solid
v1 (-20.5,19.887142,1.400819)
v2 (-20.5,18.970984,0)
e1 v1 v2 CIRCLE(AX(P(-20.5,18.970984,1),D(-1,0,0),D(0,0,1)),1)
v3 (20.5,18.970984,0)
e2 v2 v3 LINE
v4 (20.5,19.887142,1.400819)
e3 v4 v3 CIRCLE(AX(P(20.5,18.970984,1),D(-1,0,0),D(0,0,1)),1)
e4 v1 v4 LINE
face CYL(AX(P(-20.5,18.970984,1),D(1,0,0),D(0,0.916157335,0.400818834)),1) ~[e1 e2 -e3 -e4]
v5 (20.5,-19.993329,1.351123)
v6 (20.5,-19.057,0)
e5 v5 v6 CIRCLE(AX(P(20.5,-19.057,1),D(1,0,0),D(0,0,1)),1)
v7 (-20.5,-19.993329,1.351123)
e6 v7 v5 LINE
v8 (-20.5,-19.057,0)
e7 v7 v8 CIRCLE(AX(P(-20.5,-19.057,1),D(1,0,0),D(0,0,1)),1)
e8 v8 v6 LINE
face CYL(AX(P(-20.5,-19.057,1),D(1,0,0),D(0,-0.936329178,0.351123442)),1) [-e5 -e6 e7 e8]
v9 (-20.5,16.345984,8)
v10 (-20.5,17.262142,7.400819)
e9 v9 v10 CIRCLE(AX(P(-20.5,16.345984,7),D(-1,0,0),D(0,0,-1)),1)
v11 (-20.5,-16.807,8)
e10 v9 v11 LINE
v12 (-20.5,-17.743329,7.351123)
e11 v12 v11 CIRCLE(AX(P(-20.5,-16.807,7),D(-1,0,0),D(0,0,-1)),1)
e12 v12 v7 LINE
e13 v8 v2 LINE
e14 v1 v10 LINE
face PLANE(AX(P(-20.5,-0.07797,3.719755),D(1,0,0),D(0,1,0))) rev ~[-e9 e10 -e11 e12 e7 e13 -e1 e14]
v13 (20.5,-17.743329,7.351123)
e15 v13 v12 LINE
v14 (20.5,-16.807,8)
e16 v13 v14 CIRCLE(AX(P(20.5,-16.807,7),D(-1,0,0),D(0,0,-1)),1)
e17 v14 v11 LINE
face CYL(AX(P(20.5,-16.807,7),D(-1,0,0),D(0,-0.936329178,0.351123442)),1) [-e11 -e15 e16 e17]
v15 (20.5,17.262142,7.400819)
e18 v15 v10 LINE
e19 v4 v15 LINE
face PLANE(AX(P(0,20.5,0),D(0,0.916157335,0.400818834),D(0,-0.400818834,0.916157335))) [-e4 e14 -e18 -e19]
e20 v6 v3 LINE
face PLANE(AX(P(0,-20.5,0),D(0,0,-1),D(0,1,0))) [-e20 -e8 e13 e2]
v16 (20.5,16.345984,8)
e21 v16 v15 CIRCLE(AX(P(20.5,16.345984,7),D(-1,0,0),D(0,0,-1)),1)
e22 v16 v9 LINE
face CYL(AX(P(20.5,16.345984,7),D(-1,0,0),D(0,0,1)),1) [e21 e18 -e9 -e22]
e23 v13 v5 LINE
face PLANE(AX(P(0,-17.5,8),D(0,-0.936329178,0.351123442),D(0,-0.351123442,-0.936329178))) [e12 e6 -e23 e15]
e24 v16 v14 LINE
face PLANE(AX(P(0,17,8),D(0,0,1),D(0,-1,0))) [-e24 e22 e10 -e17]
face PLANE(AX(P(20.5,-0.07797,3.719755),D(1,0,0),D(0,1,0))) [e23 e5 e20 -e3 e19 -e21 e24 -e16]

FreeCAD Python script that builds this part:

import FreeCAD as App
import Part
import Sketcher
from FreeCAD import Vector
Q = App.Units.Quantity


def edges_at(feature, points):
    """Names of the edges that pass closest to the given points."""
    edges = feature.Shape.Edges
    near = lambda p: min(range(len(edges)), key=lambda i: edges[i].distToShape(Part.Vertex(*p))[0])
    return sorted({f"Edge{near(p) + 1}" for p in points})

doc = App.newDocument("Part")
params = doc.addObject("Spreadsheet::Sheet", "Params")
for row, (alias, value) in enumerate([
    ("sketch1_width", "41 mm"),
    ("sketch1_width2", "34.5 mm"),
    ("pad1_length", "41 mm"),
    ("fillet_radius", "1 mm"),
], start=1):
    params.set(f"A{row}", alias)
    params.set(f"B{row}", "=" + value)
    params.setAlias(f"B{row}", alias)

body = doc.addObject("PartDesign::Body", "Body")

sketch1 = doc.addObject("Sketcher::SketchObject", "Sketch")
body.addObject(sketch1)
sketch1.AttachmentSupport = (doc.YZ_Plane, [""])
sketch1.MapMode = "FlatFace"
sketch1.addGeometry([
    Part.LineSegment(Vector(-18, 8, 0), Vector(-20, 0, 0)),
    Part.LineSegment(Vector(-20, 0, 0), Vector(20, 0, 0)),
    Part.LineSegment(Vector(20, 0, 0), Vector(17, 8, 0)),
    Part.LineSegment(Vector(17, 8, 0), Vector(-18, 8, 0)),
], False)
sketch1.addConstraint([
    Sketcher.Constraint("Coincident", 0, 2, 1, 1),
    Sketcher.Constraint("Coincident", 1, 2, 2, 1),
    Sketcher.Constraint("Coincident", 2, 2, 3, 1),
    Sketcher.Constraint("Coincident", 3, 2, 0, 1),
    Sketcher.Constraint("Horizontal", 1),
    Sketcher.Constraint("Horizontal", 3),
    Sketcher.Constraint("Symmetric", 0, 2, 1, 2, -1, 1),
    Sketcher.Constraint("DistanceX", 1, 1, 1, 2, Q("41 mm")),
    Sketcher.Constraint("DistanceX", 3, 2, 3, 1, Q("34.5 mm")),
    Sketcher.Constraint("DistanceX", -1, 1, 2, 2, Q("17 mm")),
    Sketcher.Constraint("DistanceY", -1, 1, 2, 2, Q("8 mm")),
])
sketch1.setExpression("Constraints[7]", "Params.sketch1_width")
sketch1.setExpression("Constraints[8]", "Params.sketch1_width2")
pad1 = doc.addObject("PartDesign::Pad", "Pad")
body.addObject(pad1)
pad1.Profile = sketch1
pad1.setExpression("Length", "Params.pad1_length")
pad1.Midplane = True
doc.recompute()

fillet = doc.addObject("PartDesign::Fillet", "Fillet")
body.addObject(fillet)
fillet.Base = (pad1, edges_at(pad1, [
    (0, -20.5, 0),
    (0, -17.5, 8),
    (0, 17, 8),
    (0, 20.5, 0),
]))
fillet.setExpression("Radius", "Params.fillet_radius")

doc.recompute()
